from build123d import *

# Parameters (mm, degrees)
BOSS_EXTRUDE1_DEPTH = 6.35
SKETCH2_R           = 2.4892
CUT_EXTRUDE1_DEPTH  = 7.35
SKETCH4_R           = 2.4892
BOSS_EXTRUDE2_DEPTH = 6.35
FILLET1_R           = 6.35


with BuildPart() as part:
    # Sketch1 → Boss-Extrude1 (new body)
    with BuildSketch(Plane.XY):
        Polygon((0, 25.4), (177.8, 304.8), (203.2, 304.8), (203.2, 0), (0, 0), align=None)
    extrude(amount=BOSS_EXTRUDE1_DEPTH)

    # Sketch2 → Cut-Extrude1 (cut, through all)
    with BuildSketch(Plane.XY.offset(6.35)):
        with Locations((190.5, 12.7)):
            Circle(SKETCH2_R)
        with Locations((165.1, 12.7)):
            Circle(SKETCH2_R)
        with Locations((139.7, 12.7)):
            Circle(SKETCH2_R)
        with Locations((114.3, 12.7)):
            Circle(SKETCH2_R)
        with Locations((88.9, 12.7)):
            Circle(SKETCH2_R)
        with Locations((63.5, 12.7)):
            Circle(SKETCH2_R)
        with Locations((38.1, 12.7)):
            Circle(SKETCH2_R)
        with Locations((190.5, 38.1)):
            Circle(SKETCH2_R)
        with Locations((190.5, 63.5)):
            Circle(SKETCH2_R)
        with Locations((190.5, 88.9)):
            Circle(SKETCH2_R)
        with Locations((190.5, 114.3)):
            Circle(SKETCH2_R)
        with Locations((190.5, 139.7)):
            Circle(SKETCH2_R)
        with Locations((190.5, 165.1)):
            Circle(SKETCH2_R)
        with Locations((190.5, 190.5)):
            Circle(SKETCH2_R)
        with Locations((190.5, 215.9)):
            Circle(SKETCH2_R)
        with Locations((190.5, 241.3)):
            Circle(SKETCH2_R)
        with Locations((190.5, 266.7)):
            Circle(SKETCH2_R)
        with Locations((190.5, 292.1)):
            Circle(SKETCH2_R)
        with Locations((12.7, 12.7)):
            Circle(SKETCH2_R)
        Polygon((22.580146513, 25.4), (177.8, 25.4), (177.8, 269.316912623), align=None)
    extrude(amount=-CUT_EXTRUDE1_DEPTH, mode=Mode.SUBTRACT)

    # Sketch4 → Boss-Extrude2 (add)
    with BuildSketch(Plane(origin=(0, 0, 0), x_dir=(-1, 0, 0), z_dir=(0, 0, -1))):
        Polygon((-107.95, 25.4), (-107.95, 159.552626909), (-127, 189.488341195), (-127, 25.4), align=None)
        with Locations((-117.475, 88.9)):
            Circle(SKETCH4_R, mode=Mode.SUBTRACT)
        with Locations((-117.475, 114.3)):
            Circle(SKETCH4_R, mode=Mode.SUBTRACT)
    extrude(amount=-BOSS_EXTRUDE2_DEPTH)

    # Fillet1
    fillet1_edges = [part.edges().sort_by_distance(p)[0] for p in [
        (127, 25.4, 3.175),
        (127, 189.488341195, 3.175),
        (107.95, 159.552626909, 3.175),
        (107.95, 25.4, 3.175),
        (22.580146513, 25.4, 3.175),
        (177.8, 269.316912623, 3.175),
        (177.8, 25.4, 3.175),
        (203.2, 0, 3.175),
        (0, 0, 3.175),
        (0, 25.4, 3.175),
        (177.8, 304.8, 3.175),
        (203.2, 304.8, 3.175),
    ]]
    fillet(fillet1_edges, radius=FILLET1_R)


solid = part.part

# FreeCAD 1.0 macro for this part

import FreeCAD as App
import Part
import Sketcher

V = App.Vector
Q = App.Units.Quantity


def edges_at(feature, points):
    """Names of the edges that pass closest to the given points."""
    edges = feature.Shape.Edges
    near = lambda p: min(range(len(edges)), key=lambda i: edges[i].distToShape(Part.Vertex(*p))[0])
    return sorted({f"Edge{near(p) + 1}" for p in points})


def add_polygon(sketch, points):
    """Adds a closed chain of lines whose ends are joined by coincident constraints."""
    first, n = sketch.GeometryCount, len(points)
    for a, b in zip(points, points[1:] + points[:1]):
        sketch.addGeometry(Part.LineSegment(App.Vector(*a, 0), App.Vector(*b, 0)), False)
    for i in range(n):
        sketch.addConstraint(Sketcher.Constraint("Coincident", first + i, 2, first + (i + 1) % n, 1))

doc = App.newDocument("Part")
params = doc.addObject("Spreadsheet::Sheet", "Params")
for row, (alias, value) in enumerate([
    ("sketch1_width", "8 in"),
    ("sketch1_width2", "1 in"),
    ("sketch1_height", "12 in"),
    ("pad1_length", "0.25 in"),
    ("sketch2_diameter", "0.196 in"),
    ("sketch3_diameter", "0.196 in"),
    ("sketch3_width", "0.75 in"),
    ("pad2_length", "0.25 in"),
    ("fillet_radius", "0.25 in"),
], start=1):
    params.set(f"A{row}", alias)
    params.set(f"B{row}", "=" + value)
    params.setAlias(f"B{row}", alias)

body = doc.addObject("PartDesign::Body", "Body")

# Sketch on XY plane
sketch1 = body.newObject("Sketcher::SketchObject", "Sketch")
sketch1.AttachmentSupport = (doc.getObject("XY_Plane"), [""])
sketch1.MapMode = "FlatFace"
add_polygon(sketch1, [(177.8, 304.8), (0, 25.4), (0, 0), (203.2, 0), (203.2, 304.8)])  # lines 0-4
sketch1.addConstraint(Sketcher.Constraint("Vertical", 1))
sketch1.addConstraint(Sketcher.Constraint("Horizontal", 2))
sketch1.addConstraint(Sketcher.Constraint("Vertical", 3))
sketch1.addConstraint(Sketcher.Constraint("Horizontal", 4))
sketch1.addConstraint(Sketcher.Constraint("Coincident", 1, 2, -1, 1))
sketch1.addConstraint(Sketcher.Constraint("Equal", 4, 1))
sketch1.addConstraint(Sketcher.Constraint("DistanceX", 2, 1, 2, 2, Q("8 in")))
sketch1.addConstraint(Sketcher.Constraint("DistanceX", 4, 2, 4, 1, Q("1 in")))
sketch1.addConstraint(Sketcher.Constraint("DistanceY", 3, 1, 3, 2, Q("12 in")))
sketch1.setExpression("Constraints[11]", "Params.sketch1_width")
sketch1.setExpression("Constraints[12]", "Params.sketch1_width2")
sketch1.setExpression("Constraints[13]", "Params.sketch1_height")
pad1 = body.newObject("PartDesign::Pad", "Pad")
pad1.Profile = sketch1
pad1.setExpression("Length", "Params.pad1_length")

# Sketch on XY plane
sketch2 = body.newObject("Sketcher::SketchObject", "Sketch001")
sketch2.AttachmentSupport = (doc.getObject("XY_Plane"), [""])
sketch2.MapMode = "FlatFace"
sketch2.AttachmentOffset = App.Placement(V(0, 0, 0.25 * 25.4), App.Rotation())
sketch2.addGeometry(Part.Circle(V(190.5, 12.7, 0), V(0, 0, 1), 2.4892), False)  # 0
sketch2.addGeometry(Part.Circle(V(165.1, 12.7, 0), V(0, 0, 1), 2.4892), False)  # 1
sketch2.addGeometry(Part.Circle(V(139.7, 12.7, 0), V(0, 0, 1), 2.4892), False)  # 2
sketch2.addGeometry(Part.Circle(V(114.3, 12.7, 0), V(0, 0, 1), 2.4892), False)  # 3
sketch2.addGeometry(Part.Circle(V(88.9, 12.7, 0), V(0, 0, 1), 2.4892), False)  # 4
sketch2.addGeometry(Part.Circle(V(63.5, 12.7, 0), V(0, 0, 1), 2.4892), False)  # 5
sketch2.addGeometry(Part.Circle(V(38.1, 12.7, 0), V(0, 0, 1), 2.4892), False)  # 6
sketch2.addGeometry(Part.Circle(V(190.5, 38.1, 0), V(0, 0, 1), 2.4892), False)  # 7
sketch2.addGeometry(Part.Circle(V(190.5, 63.5, 0), V(0, 0, 1), 2.4892), False)  # 8
sketch2.addGeometry(Part.Circle(V(190.5, 88.9, 0), V(0, 0, 1), 2.4892), False)  # 9
sketch2.addGeometry(Part.Circle(V(190.5, 114.3, 0), V(0, 0, 1), 2.4892), False)  # 10
sketch2.addGeometry(Part.Circle(V(190.5, 139.7, 0), V(0, 0, 1), 2.4892), False)  # 11
sketch2.addGeometry(Part.Circle(V(190.5, 165.1, 0), V(0, 0, 1), 2.4892), False)  # 12
sketch2.addGeometry(Part.Circle(V(190.5, 190.5, 0), V(0, 0, 1), 2.4892), False)  # 13
sketch2.addGeometry(Part.Circle(V(190.5, 215.9, 0), V(0, 0, 1), 2.4892), False)  # 14
sketch2.addGeometry(Part.Circle(V(190.5, 241.3, 0), V(0, 0, 1), 2.4892), False)  # 15
sketch2.addGeometry(Part.Circle(V(190.5, 266.7, 0), V(0, 0, 1), 2.4892), False)  # 16
sketch2.addGeometry(Part.Circle(V(190.5, 292.1, 0), V(0, 0, 1), 2.4892), False)  # 17
sketch2.addGeometry(Part.Circle(V(12.7, 12.7, 0), V(0, 0, 1), 2.4892), False)  # 18
add_polygon(sketch2, [(22.580147, 25.4), (177.8, 25.4), (177.8, 269.316913)])  # lines 19-21
sketch2.addConstraint(Sketcher.Constraint("Horizontal", 19))
sketch2.addConstraint(Sketcher.Constraint("Vertical", 20))
sketch2.addConstraint(Sketcher.Constraint("Equal", 0, 1))
sketch2.addConstraint(Sketcher.Constraint("Equal", 1, 2))
sketch2.addConstraint(Sketcher.Constraint("Equal", 2, 3))
sketch2.addConstraint(Sketcher.Constraint("Equal", 3, 4))
sketch2.addConstraint(Sketcher.Constraint("Equal", 4, 5))
sketch2.addConstraint(Sketcher.Constraint("Equal", 5, 6))
sketch2.addConstraint(Sketcher.Constraint("Equal", 6, 7))
sketch2.addConstraint(Sketcher.Constraint("Equal", 7, 8))
sketch2.addConstraint(Sketcher.Constraint("Equal", 8, 9))
sketch2.addConstraint(Sketcher.Constraint("Equal", 9, 10))
sketch2.addConstraint(Sketcher.Constraint("Equal", 10, 11))
sketch2.addConstraint(Sketcher.Constraint("Equal", 11, 12))
sketch2.addConstraint(Sketcher.Constraint("Equal", 12, 13))
sketch2.addConstraint(Sketcher.Constraint("Equal", 13, 14))
sketch2.addConstraint(Sketcher.Constraint("Equal", 14, 15))
sketch2.addConstraint(Sketcher.Constraint("Equal", 15, 16))
sketch2.addConstraint(Sketcher.Constraint("Equal", 16, 17))
sketch2.addConstraint(Sketcher.Constraint("Equal", 17, 18))
sketch2.addConstraint(Sketcher.Constraint("Horizontal", 0, 3, 1, 3))
sketch2.addConstraint(Sketcher.Constraint("Horizontal", 1, 3, 2, 3))
sketch2.addConstraint(Sketcher.Constraint("Horizontal", 2, 3, 3, 3))
sketch2.addConstraint(Sketcher.Constraint("Horizontal", 3, 3, 4, 3))
sketch2.addConstraint(Sketcher.Constraint("Horizontal", 4, 3, 5, 3))
sketch2.addConstraint(Sketcher.Constraint("Horizontal", 5, 3, 6, 3))
sketch2.addConstraint(Sketcher.Constraint("Horizontal", 6, 3, 18, 3))
sketch2.addConstraint(Sketcher.Constraint("Vertical", 0, 3, 7, 3))
sketch2.addConstraint(Sketcher.Constraint("Vertical", 7, 3, 8, 3))
sketch2.addConstraint(Sketcher.Constraint("Vertical", 8, 3, 9, 3))
sketch2.addConstraint(Sketcher.Constraint("Vertical", 9, 3, 10, 3))
sketch2.addConstraint(Sketcher.Constraint("Vertical", 10, 3, 11, 3))
sketch2.addConstraint(Sketcher.Constraint("Vertical", 11, 3, 12, 3))
sketch2.addConstraint(Sketcher.Constraint("Vertical", 12, 3, 13, 3))
sketch2.addConstraint(Sketcher.Constraint("Vertical", 13, 3, 14, 3))
sketch2.addConstraint(Sketcher.Constraint("Vertical", 14, 3, 15, 3))
sketch2.addConstraint(Sketcher.Constraint("Vertical", 15, 3, 16, 3))
sketch2.addConstraint(Sketcher.Constraint("Vertical", 16, 3, 17, 3))
sketch2.addConstraint(Sketcher.Constraint("Diameter", 0, Q("0.196 in")))
sketch2.addConstraint(Sketcher.Constraint("DistanceX", -1, 1, 19, 2, Q("7 in")))
sketch2.addConstraint(Sketcher.Constraint("DistanceY", -1, 1, 19, 2, Q("1 in")))
sketch2.addConstraint(Sketcher.Constraint("DistanceX", 1, 3, 0, 3, Q("1 in")))
sketch2.addConstraint(Sketcher.Constraint("DistanceX", 2, 3, 1, 3, Q("1 in")))
sketch2.addConstraint(Sketcher.Constraint("DistanceX", 3, 3, 2, 3, Q("1 in")))
sketch2.addConstraint(Sketcher.Constraint("DistanceX", 4, 3, 3, 3, Q("1 in")))
sketch2.addConstraint(Sketcher.Constraint("DistanceX", 5, 3, 4, 3, Q("1 in")))
sketch2.addConstraint(Sketcher.Constraint("DistanceX", 6, 3, 5, 3, Q("1 in")))
sketch2.addConstraint(Sketcher.Constraint("DistanceY", 0, 3, 7, 3, Q("1 in")))
sketch2.addConstraint(Sketcher.Constraint("DistanceY", 7, 3, 8, 3, Q("1 in")))
sketch2.addConstraint(Sketcher.Constraint("DistanceY", 8, 3, 9, 3, Q("1 in")))
sketch2.addConstraint(Sketcher.Constraint("DistanceY", 9, 3, 10, 3, Q("1 in")))
sketch2.addConstraint(Sketcher.Constraint("DistanceY", 10, 3, 11, 3, Q("1 in")))
sketch2.addConstraint(Sketcher.Constraint("DistanceY", 11, 3, 12, 3, Q("1 in")))
sketch2.addConstraint(Sketcher.Constraint("DistanceY", 12, 3, 13, 3, Q("1 in")))
sketch2.addConstraint(Sketcher.Constraint("DistanceY", 13, 3, 14, 3, Q("1 in")))
sketch2.addConstraint(Sketcher.Constraint("DistanceY", 14, 3, 15, 3, Q("1 in")))
sketch2.addConstraint(Sketcher.Constraint("DistanceY", 15, 3, 16, 3, Q("1 in")))
sketch2.addConstraint(Sketcher.Constraint("DistanceY", 16, 3, 17, 3, Q("1 in")))
sketch2.addConstraint(Sketcher.Constraint("DistanceX", 18, 3, 6, 3, Q("1 in")))
sketch2.addConstraint(Sketcher.Constraint("DistanceX", -1, 1, 0, 3, Q("7.5 in")))
sketch2.addConstraint(Sketcher.Constraint("DistanceY", -1, 1, 0, 3, Q("0.5 in")))
sketch2.addConstraint(Sketcher.Constraint("Distance", 21, Q("289.117041 mm")))
sketch2.addConstraint(Sketcher.Constraint("DistanceX", 19, 1, 19, 2, Q("155.219853 mm")))
sketch2.setExpression("Constraints[41]", "Params.sketch2_diameter")
pocket1 = body.newObject("PartDesign::Pocket", "Pocket")
pocket1.Profile = sketch2
pocket1.Type = "ThroughAll"

# Sketch on XY plane
sketch3 = body.newObject("Sketcher::SketchObject", "Sketch002")
sketch3.AttachmentSupport = (doc.getObject("XY_Plane"), [""])
sketch3.MapMode = "FlatFace"
add_polygon(sketch3, [(107.95, 25.4), (107.95, 159.552627), (127, 189.488341), (127, 25.4)])  # lines 0-3
sketch3.addGeometry(Part.Circle(V(117.475, 88.9, 0), V(0, 0, 1), 2.4892), False)  # 4
sketch3.addGeometry(Part.Circle(V(117.475, 114.3, 0), V(0, 0, 1), 2.4892), False)  # 5
sketch3.addConstraint(Sketcher.Constraint("Vertical", 0))
sketch3.addConstraint(Sketcher.Constraint("Vertical", 2))
sketch3.addConstraint(Sketcher.Constraint("Horizontal", 3))
sketch3.addConstraint(Sketcher.Constraint("Equal", 4, 5))
sketch3.addConstraint(Sketcher.Constraint("Vertical", 4, 3, 5, 3))
sketch3.addConstraint(Sketcher.Constraint("Diameter", 4, Q("0.196 in")))
sketch3.addConstraint(Sketcher.Constraint("DistanceX", -1, 1, 1, 2, Q("5 in")))
sketch3.addConstraint(Sketcher.Constraint("DistanceY", -1, 1, 2, 2, Q("1 in")))
sketch3.addConstraint(Sketcher.Constraint("DistanceY", 4, 3, 5, 3, Q("1 in")))
sketch3.addConstraint(Sketcher.Constraint("DistanceX", 3, 2, 3, 1, Q("0.75 in")))
sketch3.addConstraint(Sketcher.Constraint("DistanceY", -1, 1, 4, 3, Q("3.5 in")))
sketch3.addConstraint(Sketcher.Constraint("DistanceX", -1, 1, 4, 3, Q("4.625 in")))
sketch3.addConstraint(Sketcher.Constraint("DistanceY", 2, 2, 2, 1, Q("164.088341 mm")))
sketch3.addConstraint(Sketcher.Constraint("DistanceY", 0, 1, 0, 2, Q("134.152627 mm")))
sketch3.setExpression("Constraints[9]", "Params.sketch3_diameter")
sketch3.setExpression("Constraints[13]", "Params.sketch3_width")
pad2 = body.newObject("PartDesign::Pad", "Pad001")
pad2.Profile = sketch3
pad2.setExpression("Length", "Params.pad2_length")
doc.recompute()

fillet = body.newObject("PartDesign::Fillet", "Fillet")
fillet.Base = (pad2, edges_at(pad2, [
    (127, 25.4, 3.175),
    (127, 189.488, 3.175),
    (107.95, 159.553, 3.175),
    (107.95, 25.4, 3.175),
    (22.58, 25.4, 3.175),
    (177.8, 269.317, 3.175),
    (177.8, 25.4, 3.175),
    (203.2, 0, 3.175),
    (0, 0, 3.175),
    (0, 25.4, 3.175),
    (177.8, 304.8, 3.175),
    (203.2, 304.8, 3.175),
]))
fillet.setExpression("Radius", "Params.fillet_radius")

doc.recompute()
